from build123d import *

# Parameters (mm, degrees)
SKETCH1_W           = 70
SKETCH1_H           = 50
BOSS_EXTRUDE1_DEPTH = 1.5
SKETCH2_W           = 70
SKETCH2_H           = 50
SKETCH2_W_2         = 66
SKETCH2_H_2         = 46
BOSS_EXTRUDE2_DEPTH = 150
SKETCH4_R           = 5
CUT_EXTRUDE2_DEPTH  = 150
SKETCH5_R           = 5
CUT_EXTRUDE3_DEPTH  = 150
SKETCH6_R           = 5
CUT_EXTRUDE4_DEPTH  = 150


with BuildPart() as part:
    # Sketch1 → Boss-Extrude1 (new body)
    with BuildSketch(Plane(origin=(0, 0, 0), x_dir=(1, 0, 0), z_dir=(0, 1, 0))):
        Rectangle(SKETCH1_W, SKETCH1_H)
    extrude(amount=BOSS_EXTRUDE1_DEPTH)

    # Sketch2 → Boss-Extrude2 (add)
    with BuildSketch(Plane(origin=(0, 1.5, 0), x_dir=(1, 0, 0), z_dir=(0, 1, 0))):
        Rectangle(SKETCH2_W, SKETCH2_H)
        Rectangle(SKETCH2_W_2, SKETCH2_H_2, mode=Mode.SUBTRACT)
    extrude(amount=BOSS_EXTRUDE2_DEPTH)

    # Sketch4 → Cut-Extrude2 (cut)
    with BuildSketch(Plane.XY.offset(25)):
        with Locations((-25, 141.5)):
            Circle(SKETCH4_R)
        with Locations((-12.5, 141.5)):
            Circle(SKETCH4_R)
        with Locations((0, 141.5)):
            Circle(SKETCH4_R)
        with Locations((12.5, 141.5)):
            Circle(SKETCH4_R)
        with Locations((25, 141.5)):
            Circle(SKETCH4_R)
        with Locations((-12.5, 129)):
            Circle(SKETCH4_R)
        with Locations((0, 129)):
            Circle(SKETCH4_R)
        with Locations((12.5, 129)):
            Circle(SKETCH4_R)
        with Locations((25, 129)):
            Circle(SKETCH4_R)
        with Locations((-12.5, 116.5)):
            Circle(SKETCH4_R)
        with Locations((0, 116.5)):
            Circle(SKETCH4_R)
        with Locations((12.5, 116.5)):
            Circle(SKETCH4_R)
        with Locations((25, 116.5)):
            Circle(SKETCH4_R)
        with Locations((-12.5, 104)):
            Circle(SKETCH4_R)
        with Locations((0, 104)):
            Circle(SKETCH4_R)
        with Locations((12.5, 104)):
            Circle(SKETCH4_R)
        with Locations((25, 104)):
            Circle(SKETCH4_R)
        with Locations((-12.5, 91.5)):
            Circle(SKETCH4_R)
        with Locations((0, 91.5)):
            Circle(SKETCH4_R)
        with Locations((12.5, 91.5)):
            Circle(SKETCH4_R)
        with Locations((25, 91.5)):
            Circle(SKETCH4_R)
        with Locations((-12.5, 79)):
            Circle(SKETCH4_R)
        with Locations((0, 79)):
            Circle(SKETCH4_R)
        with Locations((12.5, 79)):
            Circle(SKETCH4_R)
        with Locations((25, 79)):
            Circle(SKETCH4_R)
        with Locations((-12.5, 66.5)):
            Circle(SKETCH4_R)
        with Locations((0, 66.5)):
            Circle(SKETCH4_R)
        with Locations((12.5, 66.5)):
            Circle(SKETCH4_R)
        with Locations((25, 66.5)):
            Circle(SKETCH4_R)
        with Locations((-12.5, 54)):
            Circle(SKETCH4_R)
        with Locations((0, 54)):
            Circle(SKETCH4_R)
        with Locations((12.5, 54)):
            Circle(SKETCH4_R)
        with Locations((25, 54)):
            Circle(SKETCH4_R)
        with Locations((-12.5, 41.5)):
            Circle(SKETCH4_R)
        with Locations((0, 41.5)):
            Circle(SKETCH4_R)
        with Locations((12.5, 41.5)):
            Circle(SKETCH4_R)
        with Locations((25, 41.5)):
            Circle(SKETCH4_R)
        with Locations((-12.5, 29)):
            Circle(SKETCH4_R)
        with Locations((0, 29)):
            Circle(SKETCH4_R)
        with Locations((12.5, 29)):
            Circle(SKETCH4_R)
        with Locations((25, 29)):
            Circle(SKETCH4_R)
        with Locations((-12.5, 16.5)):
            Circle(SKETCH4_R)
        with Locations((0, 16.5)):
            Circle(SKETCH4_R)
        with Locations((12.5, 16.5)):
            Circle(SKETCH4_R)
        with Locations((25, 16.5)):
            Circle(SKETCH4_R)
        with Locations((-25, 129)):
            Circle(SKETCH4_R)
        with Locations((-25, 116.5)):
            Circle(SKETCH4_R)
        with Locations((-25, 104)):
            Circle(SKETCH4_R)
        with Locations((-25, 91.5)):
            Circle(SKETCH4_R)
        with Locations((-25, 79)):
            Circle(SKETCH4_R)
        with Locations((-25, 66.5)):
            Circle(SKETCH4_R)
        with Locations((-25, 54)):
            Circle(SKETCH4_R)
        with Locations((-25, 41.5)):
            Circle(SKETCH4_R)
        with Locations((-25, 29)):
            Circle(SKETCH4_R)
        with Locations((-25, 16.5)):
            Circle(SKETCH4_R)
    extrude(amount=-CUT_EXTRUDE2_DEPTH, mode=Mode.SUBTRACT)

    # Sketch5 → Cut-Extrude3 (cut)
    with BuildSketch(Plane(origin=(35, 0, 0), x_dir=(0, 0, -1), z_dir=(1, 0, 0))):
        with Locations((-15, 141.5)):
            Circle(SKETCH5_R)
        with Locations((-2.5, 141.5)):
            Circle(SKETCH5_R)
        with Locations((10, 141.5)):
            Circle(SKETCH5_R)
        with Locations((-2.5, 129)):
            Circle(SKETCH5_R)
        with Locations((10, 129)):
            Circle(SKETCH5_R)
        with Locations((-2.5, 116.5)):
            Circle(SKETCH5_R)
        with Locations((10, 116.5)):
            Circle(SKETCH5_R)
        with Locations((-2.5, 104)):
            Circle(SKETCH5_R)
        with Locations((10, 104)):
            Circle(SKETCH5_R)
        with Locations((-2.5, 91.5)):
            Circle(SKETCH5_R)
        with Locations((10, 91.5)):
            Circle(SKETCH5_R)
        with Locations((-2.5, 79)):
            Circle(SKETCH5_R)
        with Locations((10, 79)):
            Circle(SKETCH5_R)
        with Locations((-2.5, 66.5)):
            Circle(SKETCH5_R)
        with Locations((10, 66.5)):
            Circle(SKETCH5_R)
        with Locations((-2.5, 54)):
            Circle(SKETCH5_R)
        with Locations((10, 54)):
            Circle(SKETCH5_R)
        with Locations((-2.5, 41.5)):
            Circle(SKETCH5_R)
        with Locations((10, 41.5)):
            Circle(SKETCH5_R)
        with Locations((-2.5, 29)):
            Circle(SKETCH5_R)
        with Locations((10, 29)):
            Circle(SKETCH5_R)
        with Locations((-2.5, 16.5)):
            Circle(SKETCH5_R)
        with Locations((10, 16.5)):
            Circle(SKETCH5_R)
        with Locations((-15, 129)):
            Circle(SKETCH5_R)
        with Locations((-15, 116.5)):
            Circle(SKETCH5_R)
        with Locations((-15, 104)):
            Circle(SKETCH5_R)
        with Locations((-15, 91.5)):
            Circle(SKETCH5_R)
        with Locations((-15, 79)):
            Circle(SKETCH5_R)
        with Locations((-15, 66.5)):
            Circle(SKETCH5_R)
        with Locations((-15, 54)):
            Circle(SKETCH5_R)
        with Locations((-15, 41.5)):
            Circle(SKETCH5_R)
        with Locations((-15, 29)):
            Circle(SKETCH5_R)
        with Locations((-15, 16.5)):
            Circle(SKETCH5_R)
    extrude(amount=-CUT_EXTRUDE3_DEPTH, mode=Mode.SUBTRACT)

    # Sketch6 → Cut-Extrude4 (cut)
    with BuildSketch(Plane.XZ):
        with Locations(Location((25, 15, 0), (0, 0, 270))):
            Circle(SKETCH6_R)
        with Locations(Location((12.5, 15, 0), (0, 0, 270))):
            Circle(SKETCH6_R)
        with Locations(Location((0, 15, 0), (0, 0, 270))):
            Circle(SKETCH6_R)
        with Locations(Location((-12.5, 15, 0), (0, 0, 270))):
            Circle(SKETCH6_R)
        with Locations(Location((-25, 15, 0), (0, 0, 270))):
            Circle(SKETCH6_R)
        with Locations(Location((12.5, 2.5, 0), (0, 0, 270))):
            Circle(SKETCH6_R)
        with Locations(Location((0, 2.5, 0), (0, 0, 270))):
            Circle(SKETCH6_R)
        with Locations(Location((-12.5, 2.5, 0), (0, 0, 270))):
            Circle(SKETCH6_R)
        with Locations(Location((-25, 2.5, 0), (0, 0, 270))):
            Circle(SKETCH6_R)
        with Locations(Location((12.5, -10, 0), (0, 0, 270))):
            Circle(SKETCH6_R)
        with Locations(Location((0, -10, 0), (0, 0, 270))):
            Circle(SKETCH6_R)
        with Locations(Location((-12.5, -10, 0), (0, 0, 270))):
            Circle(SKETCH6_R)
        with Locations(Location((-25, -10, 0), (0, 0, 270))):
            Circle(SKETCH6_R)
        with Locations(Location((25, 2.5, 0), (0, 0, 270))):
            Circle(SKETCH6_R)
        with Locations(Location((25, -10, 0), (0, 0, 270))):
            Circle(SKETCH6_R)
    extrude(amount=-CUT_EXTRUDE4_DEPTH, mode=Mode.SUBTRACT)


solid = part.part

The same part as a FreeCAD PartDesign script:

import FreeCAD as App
import Part
import Sketcher


def add_polygon(sketch, points):
    """Adds a closed chain of lines whose ends are joined by coincident constraints."""
    first, n = sketch.GeometryCount, len(points)
    for a, b in zip(points, points[1:] + points[:1]):
        sketch.addGeometry(Part.LineSegment(App.Vector(*a, 0), App.Vector(*b, 0)), False)
    for i in range(n):
        sketch.addConstraint(Sketcher.Constraint("Coincident", first + i, 2, first + (i + 1) % n, 1))

doc = App.newDocument("Part")
body = doc.addObject("PartDesign::Body", "Body")

sketch1 = body.newObject("Sketcher::SketchObject", "Sketch")
sketch1.AttachmentSupport = (doc.getObject("XZ_Plane"), [""])
sketch1.MapMode = "FlatFace"
add_polygon(sketch1, [(-35, -25), (-35, 25), (35, 25), (35, -25)])
sketch1.addConstraint(Sketcher.Constraint("Vertical", 0))
sketch1.addConstraint(Sketcher.Constraint("Horizontal", 1))
sketch1.addConstraint(Sketcher.Constraint("Vertical", 2))
sketch1.addConstraint(Sketcher.Constraint("Horizontal", 3))
sketch1.addConstraint(Sketcher.Constraint("Symmetric", 0, 2, 2, 2, -1, 1))
sketch1.addConstraint(Sketcher.Constraint("DistanceX", 1, 1, 1, 2, 70.0))
sketch1.addConstraint(Sketcher.Constraint("DistanceY", 0, 1, 0, 2, 50.0))
pad1 = body.newObject("PartDesign::Pad", "Pad")
pad1.Profile = sketch1
pad1.Length = 1.5
pad1.Reversed = True

sketch2 = body.newObject("Sketcher::SketchObject", "Sketch001")
sketch2.AttachmentSupport = (doc.getObject("XZ_Plane"), [""])
sketch2.MapMode = "FlatFace"
sketch2.AttachmentOffset = App.Placement(App.Vector(0, 0, -1.5), App.Rotation())
add_polygon(sketch2, [(-35, -25), (-35, 25), (35, 25), (35, -25)])
add_polygon(sketch2, [(33, 23), (-33, 23), (-33, -23), (33, -23)])
sketch2.addConstraint(Sketcher.Constraint("Vertical", 0))
sketch2.addConstraint(Sketcher.Constraint("Horizontal", 1))
sketch2.addConstraint(Sketcher.Constraint("Vertical", 2))
sketch2.addConstraint(Sketcher.Constraint("Horizontal", 3))
sketch2.addConstraint(Sketcher.Constraint("Horizontal", 4))
sketch2.addConstraint(Sketcher.Constraint("Vertical", 5))
sketch2.addConstraint(Sketcher.Constraint("Horizontal", 6))
sketch2.addConstraint(Sketcher.Constraint("Vertical", 7))
sketch2.addConstraint(Sketcher.Constraint("Symmetric", 0, 2, 2, 2, -1, 1))
sketch2.addConstraint(Sketcher.Constraint("Symmetric", 4, 2, 6, 2, -1, 1))
sketch2.addConstraint(Sketcher.Constraint("DistanceX", 1, 1, 1, 2, 70.0))
sketch2.addConstraint(Sketcher.Constraint("DistanceX", 4, 2, 4, 1, 66.0))
sketch2.addConstraint(Sketcher.Constraint("DistanceY", 0, 1, 0, 2, 50.0))
sketch2.addConstraint(Sketcher.Constraint("DistanceY", 5, 2, 5, 1, 46.0))
pad2 = body.newObject("PartDesign::Pad", "Pad001")
pad2.Profile = sketch2
pad2.Length = 150
pad2.Reversed = True

sketch3 = body.newObject("Sketcher::SketchObject", "Sketch002")
sketch3.AttachmentSupport = (doc.getObject("XY_Plane"), [""])
sketch3.MapMode = "FlatFace"
sketch3.AttachmentOffset = App.Placement(App.Vector(0, 0, 25), App.Rotation())
sketch3.addGeometry(Part.Circle(App.Vector(-25, 142, 0), App.Vector(0, 0, 1), 5), False)
sketch3.addGeometry(Part.Circle(App.Vector(-12, 142, 0), App.Vector(0, 0, 1), 5), False)
sketch3.addGeometry(Part.Circle(App.Vector(0, 142, 0), App.Vector(0, 0, 1), 5), False)
sketch3.addGeometry(Part.Circle(App.Vector(12, 142, 0), App.Vector(0, 0, 1), 5), False)
sketch3.addGeometry(Part.Circle(App.Vector(25, 142, 0), App.Vector(0, 0, 1), 5), False)
sketch3.addGeometry(Part.Circle(App.Vector(-12, 129, 0), App.Vector(0, 0, 1), 5), False)
sketch3.addGeometry(Part.Circle(App.Vector(0, 129, 0), App.Vector(0, 0, 1), 5), False)
sketch3.addGeometry(Part.Circle(App.Vector(12, 129, 0), App.Vector(0, 0, 1), 5), False)
sketch3.addGeometry(Part.Circle(App.Vector(25, 129, 0), App.Vector(0, 0, 1), 5), False)
sketch3.addGeometry(Part.Circle(App.Vector(-12, 116, 0), App.Vector(0, 0, 1), 5), False)
sketch3.addGeometry(Part.Circle(App.Vector(0, 116, 0), App.Vector(0, 0, 1), 5), False)
sketch3.addGeometry(Part.Circle(App.Vector(12, 116, 0), App.Vector(0, 0, 1), 5), False)
sketch3.addGeometry(Part.Circle(App.Vector(25, 116, 0), App.Vector(0, 0, 1), 5), False)
sketch3.addGeometry(Part.Circle(App.Vector(-12, 104, 0), App.Vector(0, 0, 1), 5), False)
sketch3.addGeometry(Part.Circle(App.Vector(0, 104, 0), App.Vector(0, 0, 1), 5), False)
sketch3.addGeometry(Part.Circle(App.Vector(12, 104, 0), App.Vector(0, 0, 1), 5), False)
sketch3.addGeometry(Part.Circle(App.Vector(25, 104, 0), App.Vector(0, 0, 1), 5), False)
sketch3.addGeometry(Part.Circle(App.Vector(-12, 92, 0), App.Vector(0, 0, 1), 5), False)
sketch3.addGeometry(Part.Circle(App.Vector(0, 92, 0), App.Vector(0, 0, 1), 5), False)
sketch3.addGeometry(Part.Circle(App.Vector(12, 92, 0), App.Vector(0, 0, 1), 5), False)
sketch3.addGeometry(Part.Circle(App.Vector(25, 92, 0), App.Vector(0, 0, 1), 5), False)
sketch3.addGeometry(Part.Circle(App.Vector(-12, 79, 0), App.Vector(0, 0, 1), 5), False)
sketch3.addGeometry(Part.Circle(App.Vector(0, 79, 0), App.Vector(0, 0, 1), 5), False)
sketch3.addGeometry(Part.Circle(App.Vector(12, 79, 0), App.Vector(0, 0, 1), 5), False)
sketch3.addGeometry(Part.Circle(App.Vector(25, 79, 0), App.Vector(0, 0, 1), 5), False)
sketch3.addGeometry(Part.Circle(App.Vector(-12, 66, 0), App.Vector(0, 0, 1), 5), False)
sketch3.addGeometry(Part.Circle(App.Vector(0, 66, 0), App.Vector(0, 0, 1), 5), False)
sketch3.addGeometry(Part.Circle(App.Vector(12, 66, 0), App.Vector(0, 0, 1), 5), False)
sketch3.addGeometry(Part.Circle(App.Vector(25, 66, 0), App.Vector(0, 0, 1), 5), False)
sketch3.addGeometry(Part.Circle(App.Vector(-12, 54, 0), App.Vector(0, 0, 1), 5), False)
sketch3.addGeometry(Part.Circle(App.Vector(0, 54, 0), App.Vector(0, 0, 1), 5), False)
sketch3.addGeometry(Part.Circle(App.Vector(12, 54, 0), App.Vector(0, 0, 1), 5), False)
sketch3.addGeometry(Part.Circle(App.Vector(25, 54, 0), App.Vector(0, 0, 1), 5), False)
sketch3.addGeometry(Part.Circle(App.Vector(-12, 42, 0), App.Vector(0, 0, 1), 5), False)
sketch3.addGeometry(Part.Circle(App.Vector(0, 42, 0), App.Vector(0, 0, 1), 5), False)
sketch3.addGeometry(Part.Circle(App.Vector(12, 42, 0), App.Vector(0, 0, 1), 5), False)
sketch3.addGeometry(Part.Circle(App.Vector(25, 42, 0), App.Vector(0, 0, 1), 5), False)
sketch3.addGeometry(Part.Circle(App.Vector(-12, 29, 0), App.Vector(0, 0, 1), 5), False)
sketch3.addGeometry(Part.Circle(App.Vector(0, 29, 0), App.Vector(0, 0, 1), 5), False)
sketch3.addGeometry(Part.Circle(App.Vector(12, 29, 0), App.Vector(0, 0, 1), 5), False)
sketch3.addGeometry(Part.Circle(App.Vector(25, 29, 0), App.Vector(0, 0, 1), 5), False)
sketch3.addGeometry(Part.Circle(App.Vector(-12, 16, 0), App.Vector(0, 0, 1), 5), False)
sketch3.addGeometry(Part.Circle(App.Vector(0, 16, 0), App.Vector(0, 0, 1), 5), False)
sketch3.addGeometry(Part.Circle(App.Vector(12, 16, 0), App.Vector(0, 0, 1), 5), False)
sketch3.addGeometry(Part.Circle(App.Vector(25, 16, 0), App.Vector(0, 0, 1), 5), False)
sketch3.addGeometry(Part.Circle(App.Vector(-25, 129, 0), App.Vector(0, 0, 1), 5), False)
sketch3.addGeometry(Part.Circle(App.Vector(-25, 116, 0), App.Vector(0, 0, 1), 5), False)
sketch3.addGeometry(Part.Circle(App.Vector(-25, 104, 0), App.Vector(0, 0, 1), 5), False)
sketch3.addGeometry(Part.Circle(App.Vector(-25, 92, 0), App.Vector(0, 0, 1), 5), False)
sketch3.addGeometry(Part.Circle(App.Vector(-25, 79, 0), App.Vector(0, 0, 1), 5), False)
sketch3.addGeometry(Part.Circle(App.Vector(-25, 66, 0), App.Vector(0, 0, 1), 5), False)
sketch3.addGeometry(Part.Circle(App.Vector(-25, 54, 0), App.Vector(0, 0, 1), 5), False)
sketch3.addGeometry(Part.Circle(App.Vector(-25, 42, 0), App.Vector(0, 0, 1), 5), False)
sketch3.addGeometry(Part.Circle(App.Vector(-25, 29, 0), App.Vector(0, 0, 1), 5), False)
sketch3.addGeometry(Part.Circle(App.Vector(-25, 16, 0), App.Vector(0, 0, 1), 5), False)
sketch3.addConstraint(Sketcher.Constraint("Equal", 0, 1))
sketch3.addConstraint(Sketcher.Constraint("Equal", 1, 2))
sketch3.addConstraint(Sketcher.Constraint("Equal", 2, 3))
sketch3.addConstraint(Sketcher.Constraint("Equal", 3, 4))
sketch3.addConstraint(Sketcher.Constraint("Equal", 4, 5))
sketch3.addConstraint(Sketcher.Constraint("Equal", 5, 6))
sketch3.addConstraint(Sketcher.Constraint("Equal", 6, 7))
sketch3.addConstraint(Sketcher.Constraint("Equal", 7, 8))
sketch3.addConstraint(Sketcher.Constraint("Equal", 8, 9))
sketch3.addConstraint(Sketcher.Constraint("Equal", 9, 10))
sketch3.addConstraint(Sketcher.Constraint("Equal", 10, 11))
sketch3.addConstraint(Sketcher.Constraint("Equal", 11, 12))
sketch3.addConstraint(Sketcher.Constraint("Equal", 12, 13))
sketch3.addConstraint(Sketcher.Constraint("Equal", 13, 14))
sketch3.addConstraint(Sketcher.Constraint("Equal", 14, 15))
sketch3.addConstraint(Sketcher.Constraint("Equal", 15, 16))
sketch3.addConstraint(Sketcher.Constraint("Equal", 16, 17))
sketch3.addConstraint(Sketcher.Constraint("Equal", 17, 18))
sketch3.addConstraint(Sketcher.Constraint("Equal", 18, 19))
sketch3.addConstraint(Sketcher.Constraint("Equal", 19, 20))
sketch3.addConstraint(Sketcher.Constraint("Equal", 20, 21))
sketch3.addConstraint(Sketcher.Constraint("Equal", 21, 22))
sketch3.addConstraint(Sketcher.Constraint("Equal", 22, 23))
sketch3.addConstraint(Sketcher.Constraint("Equal", 23, 24))
sketch3.addConstraint(Sketcher.Constraint("Equal", 24, 25))
sketch3.addConstraint(Sketcher.Constraint("Equal", 25, 26))
sketch3.addConstraint(Sketcher.Constraint("Equal", 26, 27))
sketch3.addConstraint(Sketcher.Constraint("Equal", 27, 28))
sketch3.addConstraint(Sketcher.Constraint("Equal", 28, 29))
sketch3.addConstraint(Sketcher.Constraint("Equal", 29, 30))
sketch3.addConstraint(Sketcher.Constraint("Equal", 30, 31))
sketch3.addConstraint(Sketcher.Constraint("Equal", 31, 32))
sketch3.addConstraint(Sketcher.Constraint("Equal", 32, 33))
sketch3.addConstraint(Sketcher.Constraint("Equal", 33, 34))
sketch3.addConstraint(Sketcher.Constraint("Equal", 34, 35))
sketch3.addConstraint(Sketcher.Constraint("Equal", 35, 36))
sketch3.addConstraint(Sketcher.Constraint("Equal", 36, 37))
sketch3.addConstraint(Sketcher.Constraint("Equal", 37, 38))
sketch3.addConstraint(Sketcher.Constraint("Equal", 38, 39))
sketch3.addConstraint(Sketcher.Constraint("Equal", 39, 40))
sketch3.addConstraint(Sketcher.Constraint("Equal", 40, 41))
sketch3.addConstraint(Sketcher.Constraint("Equal", 41, 42))
sketch3.addConstraint(Sketcher.Constraint("Equal", 42, 43))
sketch3.addConstraint(Sketcher.Constraint("Equal", 43, 44))
sketch3.addConstraint(Sketcher.Constraint("Equal", 44, 45))
sketch3.addConstraint(Sketcher.Constraint("Equal", 45, 46))
sketch3.addConstraint(Sketcher.Constraint("Equal", 46, 47))
sketch3.addConstraint(Sketcher.Constraint("Equal", 47, 48))
sketch3.addConstraint(Sketcher.Constraint("Equal", 48, 49))
sketch3.addConstraint(Sketcher.Constraint("Equal", 49, 50))
sketch3.addConstraint(Sketcher.Constraint("Equal", 50, 51))
sketch3.addConstraint(Sketcher.Constraint("Equal", 51, 52))
sketch3.addConstraint(Sketcher.Constraint("Equal", 52, 53))
sketch3.addConstraint(Sketcher.Constraint("Equal", 53, 54))
sketch3.addConstraint(Sketcher.Constraint("Symmetric", 1, 3, 3, 3, -2))
sketch3.addConstraint(Sketcher.Constraint("Symmetric", 0, 3, 4, 3, -2))
sketch3.addConstraint(Sketcher.Constraint("Symmetric", 5, 3, 7, 3, -2))
sketch3.addConstraint(Sketcher.Constraint("Symmetric", 9, 3, 11, 3, -2))
sketch3.addConstraint(Sketcher.Constraint("Symmetric", 13, 3, 15, 3, -2))
sketch3.addConstraint(Sketcher.Constraint("Symmetric", 17, 3, 19, 3, -2))
sketch3.addConstraint(Sketcher.Constraint("Symmetric", 21, 3, 23, 3, -2))
sketch3.addConstraint(Sketcher.Constraint("Symmetric", 25, 3, 27, 3, -2))
sketch3.addConstraint(Sketcher.Constraint("Symmetric", 29, 3, 31, 3, -2))
sketch3.addConstraint(Sketcher.Constraint("Symmetric", 33, 3, 35, 3, -2))
sketch3.addConstraint(Sketcher.Constraint("Symmetric", 37, 3, 39, 3, -2))
sketch3.addConstraint(Sketcher.Constraint("Symmetric", 41, 3, 43, 3, -2))
sketch3.addConstraint(Sketcher.Constraint("Symmetric", 8, 3, 45, 3, -2))
sketch3.addConstraint(Sketcher.Constraint("Symmetric", 12, 3, 46, 3, -2))
sketch3.addConstraint(Sketcher.Constraint("Symmetric", 16, 3, 47, 3, -2))
sketch3.addConstraint(Sketcher.Constraint("Symmetric", 20, 3, 48, 3, -2))
sketch3.addConstraint(Sketcher.Constraint("Symmetric", 24, 3, 49, 3, -2))
sketch3.addConstraint(Sketcher.Constraint("Symmetric", 28, 3, 50, 3, -2))
sketch3.addConstraint(Sketcher.Constraint("Symmetric", 32, 3, 51, 3, -2))
sketch3.addConstraint(Sketcher.Constraint("Symmetric", 36, 3, 52, 3, -2))
sketch3.addConstraint(Sketcher.Constraint("Symmetric", 40, 3, 53, 3, -2))
sketch3.addConstraint(Sketcher.Constraint("Symmetric", 44, 3, 54, 3, -2))
sketch3.addConstraint(Sketcher.Constraint("PointOnObject", 2, 3, -2))
sketch3.addConstraint(Sketcher.Constraint("PointOnObject", 6, 3, -2))
sketch3.addConstraint(Sketcher.Constraint("PointOnObject", 10, 3, -2))
sketch3.addConstraint(Sketcher.Constraint("PointOnObject", 14, 3, -2))
sketch3.addConstraint(Sketcher.Constraint("PointOnObject", 18, 3, -2))
sketch3.addConstraint(Sketcher.Constraint("PointOnObject", 22, 3, -2))
sketch3.addConstraint(Sketcher.Constraint("PointOnObject", 26, 3, -2))
sketch3.addConstraint(Sketcher.Constraint("PointOnObject", 30, 3, -2))
sketch3.addConstraint(Sketcher.Constraint("PointOnObject", 34, 3, -2))
sketch3.addConstraint(Sketcher.Constraint("PointOnObject", 38, 3, -2))
sketch3.addConstraint(Sketcher.Constraint("PointOnObject", 42, 3, -2))
sketch3.addConstraint(Sketcher.Constraint("Horizontal", 0, 3, 1, 3))
sketch3.addConstraint(Sketcher.Constraint("Horizontal", 1, 3, 2, 3))
sketch3.addConstraint(Sketcher.Constraint("Horizontal", 5, 3, 6, 3))
sketch3.addConstraint(Sketcher.Constraint("Horizontal", 7, 3, 8, 3))
sketch3.addConstraint(Sketcher.Constraint("Horizontal", 9, 3, 10, 3))
sketch3.addConstraint(Sketcher.Constraint("Horizontal", 11, 3, 12, 3))
sketch3.addConstraint(Sketcher.Constraint("Horizontal", 13, 3, 14, 3))
sketch3.addConstraint(Sketcher.Constraint("Horizontal", 15, 3, 16, 3))
sketch3.addConstraint(Sketcher.Constraint("Horizontal", 17, 3, 18, 3))
sketch3.addConstraint(Sketcher.Constraint("Horizontal", 19, 3, 20, 3))
sketch3.addConstraint(Sketcher.Constraint("Horizontal", 21, 3, 22, 3))
sketch3.addConstraint(Sketcher.Constraint("Horizontal", 23, 3, 24, 3))
sketch3.addConstraint(Sketcher.Constraint("Horizontal", 25, 3, 26, 3))
sketch3.addConstraint(Sketcher.Constraint("Horizontal", 27, 3, 28, 3))
sketch3.addConstraint(Sketcher.Constraint("Horizontal", 29, 3, 30, 3))
sketch3.addConstraint(Sketcher.Constraint("Horizontal", 31, 3, 32, 3))
sketch3.addConstraint(Sketcher.Constraint("Horizontal", 33, 3, 34, 3))
sketch3.addConstraint(Sketcher.Constraint("Horizontal", 35, 3, 36, 3))
sketch3.addConstraint(Sketcher.Constraint("Horizontal", 37, 3, 38, 3))
sketch3.addConstraint(Sketcher.Constraint("Horizontal", 39, 3, 40, 3))
sketch3.addConstraint(Sketcher.Constraint("Horizontal", 41, 3, 42, 3))
sketch3.addConstraint(Sketcher.Constraint("Horizontal", 43, 3, 44, 3))
sketch3.addConstraint(Sketcher.Constraint("Vertical", 1, 3, 5, 3))
sketch3.addConstraint(Sketcher.Constraint("Vertical", 4, 3, 8, 3))
sketch3.addConstraint(Sketcher.Constraint("Vertical", 5, 3, 9, 3))
sketch3.addConstraint(Sketcher.Constraint("Vertical", 8, 3, 12, 3))
sketch3.addConstraint(Sketcher.Constraint("Vertical", 9, 3, 13, 3))
sketch3.addConstraint(Sketcher.Constraint("Vertical", 12, 3, 16, 3))
sketch3.addConstraint(Sketcher.Constraint("Vertical", 13, 3, 17, 3))
sketch3.addConstraint(Sketcher.Constraint("Vertical", 16, 3, 20, 3))
sketch3.addConstraint(Sketcher.Constraint("Vertical", 17, 3, 21, 3))
sketch3.addConstraint(Sketcher.Constraint("Vertical", 20, 3, 24, 3))
sketch3.addConstraint(Sketcher.Constraint("Vertical", 21, 3, 25, 3))
sketch3.addConstraint(Sketcher.Constraint("Vertical", 24, 3, 28, 3))
sketch3.addConstraint(Sketcher.Constraint("Vertical", 25, 3, 29, 3))
sketch3.addConstraint(Sketcher.Constraint("Vertical", 28, 3, 32, 3))
sketch3.addConstraint(Sketcher.Constraint("Vertical", 29, 3, 33, 3))
sketch3.addConstraint(Sketcher.Constraint("Vertical", 32, 3, 36, 3))
sketch3.addConstraint(Sketcher.Constraint("Vertical", 33, 3, 37, 3))
sketch3.addConstraint(Sketcher.Constraint("Vertical", 36, 3, 40, 3))
sketch3.addConstraint(Sketcher.Constraint("Vertical", 37, 3, 41, 3))
sketch3.addConstraint(Sketcher.Constraint("Vertical", 40, 3, 44, 3))
sketch3.addConstraint(Sketcher.Constraint("Diameter", 0, 10.0))
sketch3.addConstraint(Sketcher.Constraint("DistanceX", 0, 3, -1, 1, 25.0))
sketch3.addConstraint(Sketcher.Constraint("DistanceY", -1, 1, 5, 3, 129.0))
sketch3.addConstraint(Sketcher.Constraint("DistanceY", -1, 1, 13, 3, 104.0))
sketch3.addConstraint(Sketcher.Constraint("DistanceY", -1, 1, 21, 3, 79.0))
sketch3.addConstraint(Sketcher.Constraint("DistanceY", -1, 1, 29, 3, 54.0))
sketch3.addConstraint(Sketcher.Constraint("DistanceY", -1, 1, 37, 3, 29.0))
sketch3.addConstraint(Sketcher.Constraint("DistanceX", 1, 3, 3, 3, 25.0))
sketch3.addConstraint(Sketcher.Constraint("DistanceY", 9, 3, 1, 3, 25.0))
sketch3.addConstraint(Sketcher.Constraint("DistanceY", 17, 3, 9, 3, 25.0))
sketch3.addConstraint(Sketcher.Constraint("DistanceY", 25, 3, 17, 3, 25.0))
sketch3.addConstraint(Sketcher.Constraint("DistanceY", 33, 3, 25, 3, 25.0))
sketch3.addConstraint(Sketcher.Constraint("DistanceY", 41, 3, 33, 3, 25.0))
sketch3.addConstraint(Sketcher.Constraint("DistanceY", -1, 1, 0, 3, 141.5))
pocket1 = body.newObject("PartDesign::Pocket", "Pocket")
pocket1.Profile = sketch3
pocket1.Length = 150

sketch4 = body.newObject("Sketcher::SketchObject", "Sketch003")
sketch4.AttachmentSupport = (doc.getObject("YZ_Plane"), [""])
sketch4.MapMode = "FlatFace"
sketch4.AttachmentOffset = App.Placement(App.Vector(0, 0, 35), App.Rotation())
sketch4.addGeometry(Part.Circle(App.Vector(142, 15, 0), App.Vector(0, 0, 1), 5), False)
sketch4.addGeometry(Part.Circle(App.Vector(142, 2, 0), App.Vector(0, 0, 1), 5), False)
sketch4.addGeometry(Part.Circle(App.Vector(142, -10, 0), App.Vector(0, 0, 1), 5), False)
sketch4.addGeometry(Part.Circle(App.Vector(129, 2, 0), App.Vector(0, 0, 1), 5), False)
sketch4.addGeometry(Part.Circle(App.Vector(129, -10, 0), App.Vector(0, 0, 1), 5), False)
sketch4.addGeometry(Part.Circle(App.Vector(116, 2, 0), App.Vector(0, 0, 1), 5), False)
sketch4.addGeometry(Part.Circle(App.Vector(116, -10, 0), App.Vector(0, 0, 1), 5), False)
sketch4.addGeometry(Part.Circle(App.Vector(104, 2, 0), App.Vector(0, 0, 1), 5), False)
sketch4.addGeometry(Part.Circle(App.Vector(104, -10, 0), App.Vector(0, 0, 1), 5), False)
sketch4.addGeometry(Part.Circle(App.Vector(92, 2, 0), App.Vector(0, 0, 1), 5), False)
sketch4.addGeometry(Part.Circle(App.Vector(92, -10, 0), App.Vector(0, 0, 1), 5), False)
sketch4.addGeometry(Part.Circle(App.Vector(79, 2, 0), App.Vector(0, 0, 1), 5), False)
sketch4.addGeometry(Part.Circle(App.Vector(79, -10, 0), App.Vector(0, 0, 1), 5), False)
sketch4.addGeometry(Part.Circle(App.Vector(66, 2, 0), App.Vector(0, 0, 1), 5), False)
sketch4.addGeometry(Part.Circle(App.Vector(66, -10, 0), App.Vector(0, 0, 1), 5), False)
sketch4.addGeometry(Part.Circle(App.Vector(54, 2, 0), App.Vector(0, 0, 1), 5), False)
sketch4.addGeometry(Part.Circle(App.Vector(54, -10, 0), App.Vector(0, 0, 1), 5), False)
sketch4.addGeometry(Part.Circle(App.Vector(42, 2, 0), App.Vector(0, 0, 1), 5), False)
sketch4.addGeometry(Part.Circle(App.Vector(42, -10, 0), App.Vector(0, 0, 1), 5), False)
sketch4.addGeometry(Part.Circle(App.Vector(29, 2, 0), App.Vector(0, 0, 1), 5), False)
sketch4.addGeometry(Part.Circle(App.Vector(29, -10, 0), App.Vector(0, 0, 1), 5), False)
sketch4.addGeometry(Part.Circle(App.Vector(16, 2, 0), App.Vector(0, 0, 1), 5), False)
sketch4.addGeometry(Part.Circle(App.Vector(16, -10, 0), App.Vector(0, 0, 1), 5), False)
sketch4.addGeometry(Part.Circle(App.Vector(129, 15, 0), App.Vector(0, 0, 1), 5), False)
sketch4.addGeometry(Part.Circle(App.Vector(116, 15, 0), App.Vector(0, 0, 1), 5), False)
sketch4.addGeometry(Part.Circle(App.Vector(104, 15, 0), App.Vector(0, 0, 1), 5), False)
sketch4.addGeometry(Part.Circle(App.Vector(92, 15, 0), App.Vector(0, 0, 1), 5), False)
sketch4.addGeometry(Part.Circle(App.Vector(79, 15, 0), App.Vector(0, 0, 1), 5), False)
sketch4.addGeometry(Part.Circle(App.Vector(66, 15, 0), App.Vector(0, 0, 1), 5), False)
sketch4.addGeometry(Part.Circle(App.Vector(54, 15, 0), App.Vector(0, 0, 1), 5), False)
sketch4.addGeometry(Part.Circle(App.Vector(42, 15, 0), App.Vector(0, 0, 1), 5), False)
sketch4.addGeometry(Part.Circle(App.Vector(29, 15, 0), App.Vector(0, 0, 1), 5), False)
sketch4.addGeometry(Part.Circle(App.Vector(16, 15, 0), App.Vector(0, 0, 1), 5), False)
sketch4.addConstraint(Sketcher.Constraint("Equal", 0, 1))
sketch4.addConstraint(Sketcher.Constraint("Equal", 1, 2))
sketch4.addConstraint(Sketcher.Constraint("Equal", 2, 3))
sketch4.addConstraint(Sketcher.Constraint("Equal", 3, 4))
sketch4.addConstraint(Sketcher.Constraint("Equal", 4, 5))
sketch4.addConstraint(Sketcher.Constraint("Equal", 5, 6))
sketch4.addConstraint(Sketcher.Constraint("Equal", 6, 7))
sketch4.addConstraint(Sketcher.Constraint("Equal", 7, 8))
sketch4.addConstraint(Sketcher.Constraint("Equal", 8, 9))
sketch4.addConstraint(Sketcher.Constraint("Equal", 9, 10))
sketch4.addConstraint(Sketcher.Constraint("Equal", 10, 11))
sketch4.addConstraint(Sketcher.Constraint("Equal", 11, 12))
sketch4.addConstraint(Sketcher.Constraint("Equal", 12, 13))
sketch4.addConstraint(Sketcher.Constraint("Equal", 13, 14))
sketch4.addConstraint(Sketcher.Constraint("Equal", 14, 15))
sketch4.addConstraint(Sketcher.Constraint("Equal", 15, 16))
sketch4.addConstraint(Sketcher.Constraint("Equal", 16, 17))
sketch4.addConstraint(Sketcher.Constraint("Equal", 17, 18))
sketch4.addConstraint(Sketcher.Constraint("Equal", 18, 19))
sketch4.addConstraint(Sketcher.Constraint("Equal", 19, 20))
sketch4.addConstraint(Sketcher.Constraint("Equal", 20, 21))
sketch4.addConstraint(Sketcher.Constraint("Equal", 21, 22))
sketch4.addConstraint(Sketcher.Constraint("Equal", 22, 23))
sketch4.addConstraint(Sketcher.Constraint("Equal", 23, 24))
sketch4.addConstraint(Sketcher.Constraint("Equal", 24, 25))
sketch4.addConstraint(Sketcher.Constraint("Equal", 25, 26))
sketch4.addConstraint(Sketcher.Constraint("Equal", 26, 27))
sketch4.addConstraint(Sketcher.Constraint("Equal", 27, 28))
sketch4.addConstraint(Sketcher.Constraint("Equal", 28, 29))
sketch4.addConstraint(Sketcher.Constraint("Equal", 29, 30))
sketch4.addConstraint(Sketcher.Constraint("Equal", 30, 31))
sketch4.addConstraint(Sketcher.Constraint("Equal", 31, 32))
sketch4.addConstraint(Sketcher.Constraint("Horizontal", 1, 3, 3, 3))
sketch4.addConstraint(Sketcher.Constraint("Horizontal", 2, 3, 4, 3))
sketch4.addConstraint(Sketcher.Constraint("Horizontal", 3, 3, 5, 3))
sketch4.addConstraint(Sketcher.Constraint("Horizontal", 4, 3, 6, 3))
sketch4.addConstraint(Sketcher.Constraint("Horizontal", 5, 3, 7, 3))
sketch4.addConstraint(Sketcher.Constraint("Horizontal", 6, 3, 8, 3))
sketch4.addConstraint(Sketcher.Constraint("Horizontal", 7, 3, 9, 3))
sketch4.addConstraint(Sketcher.Constraint("Horizontal", 8, 3, 10, 3))
sketch4.addConstraint(Sketcher.Constraint("Horizontal", 9, 3, 11, 3))
sketch4.addConstraint(Sketcher.Constraint("Horizontal", 10, 3, 12, 3))
sketch4.addConstraint(Sketcher.Constraint("Horizontal", 11, 3, 13, 3))
sketch4.addConstraint(Sketcher.Constraint("Horizontal", 12, 3, 14, 3))
sketch4.addConstraint(Sketcher.Constraint("Horizontal", 13, 3, 15, 3))
sketch4.addConstraint(Sketcher.Constraint("Horizontal", 14, 3, 16, 3))
sketch4.addConstraint(Sketcher.Constraint("Horizontal", 15, 3, 17, 3))
sketch4.addConstraint(Sketcher.Constraint("Horizontal", 16, 3, 18, 3))
sketch4.addConstraint(Sketcher.Constraint("Horizontal", 17, 3, 19, 3))
sketch4.addConstraint(Sketcher.Constraint("Horizontal", 18, 3, 20, 3))
sketch4.addConstraint(Sketcher.Constraint("Horizontal", 19, 3, 21, 3))
sketch4.addConstraint(Sketcher.Constraint("Horizontal", 20, 3, 22, 3))
sketch4.addConstraint(Sketcher.Constraint("Horizontal", 0, 3, 23, 3))
sketch4.addConstraint(Sketcher.Constraint("Horizontal", 23, 3, 24, 3))
sketch4.addConstraint(Sketcher.Constraint("Horizontal", 24, 3, 25, 3))
sketch4.addConstraint(Sketcher.Constraint("Horizontal", 25, 3, 26, 3))
sketch4.addConstraint(Sketcher.Constraint("Horizontal", 26, 3, 27, 3))
sketch4.addConstraint(Sketcher.Constraint("Horizontal", 27, 3, 28, 3))
sketch4.addConstraint(Sketcher.Constraint("Horizontal", 28, 3, 29, 3))
sketch4.addConstraint(Sketcher.Constraint("Horizontal", 29, 3, 30, 3))
sketch4.addConstraint(Sketcher.Constraint("Horizontal", 30, 3, 31, 3))
sketch4.addConstraint(Sketcher.Constraint("Horizontal", 31, 3, 32, 3))
sketch4.addConstraint(Sketcher.Constraint("Vertical", 0, 3, 1, 3))
sketch4.addConstraint(Sketcher.Constraint("Vertical", 1, 3, 2, 3))
sketch4.addConstraint(Sketcher.Constraint("Vertical", 3, 3, 4, 3))
sketch4.addConstraint(Sketcher.Constraint("Vertical", 5, 3, 6, 3))
sketch4.addConstraint(Sketcher.Constraint("Vertical", 7, 3, 8, 3))
sketch4.addConstraint(Sketcher.Constraint("Vertical", 9, 3, 10, 3))
sketch4.addConstraint(Sketcher.Constraint("Vertical", 11, 3, 12, 3))
sketch4.addConstraint(Sketcher.Constraint("Vertical", 13, 3, 14, 3))
sketch4.addConstraint(Sketcher.Constraint("Vertical", 15, 3, 16, 3))
sketch4.addConstraint(Sketcher.Constraint("Vertical", 17, 3, 18, 3))
sketch4.addConstraint(Sketcher.Constraint("Vertical", 19, 3, 20, 3))
sketch4.addConstraint(Sketcher.Constraint("Vertical", 21, 3, 22, 3))
sketch4.addConstraint(Sketcher.Constraint("Vertical", 4, 3, 23, 3))
sketch4.addConstraint(Sketcher.Constraint("Vertical", 6, 3, 24, 3))
sketch4.addConstraint(Sketcher.Constraint("Vertical", 8, 3, 25, 3))
sketch4.addConstraint(Sketcher.Constraint("Vertical", 10, 3, 26, 3))
sketch4.addConstraint(Sketcher.Constraint("Vertical", 12, 3, 27, 3))
sketch4.addConstraint(Sketcher.Constraint("Vertical", 14, 3, 28, 3))
sketch4.addConstraint(Sketcher.Constraint("Vertical", 16, 3, 29, 3))
sketch4.addConstraint(Sketcher.Constraint("Vertical", 18, 3, 30, 3))
sketch4.addConstraint(Sketcher.Constraint("Vertical", 20, 3, 31, 3))
sketch4.addConstraint(Sketcher.Constraint("Vertical", 22, 3, 32, 3))
sketch4.addConstraint(Sketcher.Constraint("Diameter", 0, 10.0))
sketch4.addConstraint(Sketcher.Constraint("DistanceY", -1, 1, 0, 3, 15.0))
sketch4.addConstraint(Sketcher.Constraint("DistanceY", 2, 3, -1, 1, 10.0))
sketch4.addConstraint(Sketcher.Constraint("DistanceX", -1, 1, 3, 3, 129.0))
sketch4.addConstraint(Sketcher.Constraint("DistanceX", -1, 1, 7, 3, 104.0))
sketch4.addConstraint(Sketcher.Constraint("DistanceX", -1, 1, 11, 3, 79.0))
sketch4.addConstraint(Sketcher.Constraint("DistanceX", -1, 1, 15, 3, 54.0))
sketch4.addConstraint(Sketcher.Constraint("DistanceX", -1, 1, 19, 3, 29.0))
sketch4.addConstraint(Sketcher.Constraint("DistanceX", 5, 3, 1, 3, 25.0))
sketch4.addConstraint(Sketcher.Constraint("DistanceX", 9, 3, 5, 3, 25.0))
sketch4.addConstraint(Sketcher.Constraint("DistanceX", 13, 3, 9, 3, 25.0))
sketch4.addConstraint(Sketcher.Constraint("DistanceX", 17, 3, 13, 3, 25.0))
sketch4.addConstraint(Sketcher.Constraint("DistanceX", 21, 3, 17, 3, 25.0))
sketch4.addConstraint(Sketcher.Constraint("DistanceX", -1, 1, 0, 3, 141.5))
sketch4.addConstraint(Sketcher.Constraint("DistanceY", -1, 1, 1, 3, 2.5))
pocket2 = body.newObject("PartDesign::Pocket", "Pocket001")
pocket2.Profile = sketch4
pocket2.Length = 150

sketch5 = body.newObject("Sketcher::SketchObject", "Sketch004")
sketch5.AttachmentSupport = (doc.getObject("XZ_Plane"), [""])
sketch5.MapMode = "FlatFace"
sketch5.addGeometry(Part.Circle(App.Vector(25, 15, 0), App.Vector(0, 0, 1), 5), False)
sketch5.addGeometry(Part.Circle(App.Vector(12, 15, 0), App.Vector(0, 0, 1), 5), False)
sketch5.addGeometry(Part.Circle(App.Vector(0, 15, 0), App.Vector(0, 0, 1), 5), False)
sketch5.addGeometry(Part.Circle(App.Vector(-12, 15, 0), App.Vector(0, 0, 1), 5), False)
sketch5.addGeometry(Part.Circle(App.Vector(-25, 15, 0), App.Vector(0, 0, 1), 5), False)
sketch5.addGeometry(Part.Circle(App.Vector(12, 2, 0), App.Vector(0, 0, 1), 5), False)
sketch5.addGeometry(Part.Circle(App.Vector(0, 2, 0), App.Vector(0, 0, 1), 5), False)
sketch5.addGeometry(Part.Circle(App.Vector(-12, 2, 0), App.Vector(0, 0, 1), 5), False)
sketch5.addGeometry(Part.Circle(App.Vector(-25, 2, 0), App.Vector(0, 0, 1), 5), False)
sketch5.addGeometry(Part.Circle(App.Vector(12, -10, 0), App.Vector(0, 0, 1), 5), False)
sketch5.addGeometry(Part.Circle(App.Vector(0, -10, 0), App.Vector(0, 0, 1), 5), False)
sketch5.addGeometry(Part.Circle(App.Vector(-12, -10, 0), App.Vector(0, 0, 1), 5), False)
sketch5.addGeometry(Part.Circle(App.Vector(-25, -10, 0), App.Vector(0, 0, 1), 5), False)
sketch5.addGeometry(Part.Circle(App.Vector(25, 2, 0), App.Vector(0, 0, 1), 5), False)
sketch5.addGeometry(Part.Circle(App.Vector(25, -10, 0), App.Vector(0, 0, 1), 5), False)
sketch5.addConstraint(Sketcher.Constraint("Equal", 0, 1))
sketch5.addConstraint(Sketcher.Constraint("Equal", 1, 2))
sketch5.addConstraint(Sketcher.Constraint("Equal", 2, 3))
sketch5.addConstraint(Sketcher.Constraint("Equal", 3, 4))
sketch5.addConstraint(Sketcher.Constraint("Equal", 4, 5))
sketch5.addConstraint(Sketcher.Constraint("Equal", 5, 6))
sketch5.addConstraint(Sketcher.Constraint("Equal", 6, 7))
sketch5.addConstraint(Sketcher.Constraint("Equal", 7, 8))
sketch5.addConstraint(Sketcher.Constraint("Equal", 8, 9))
sketch5.addConstraint(Sketcher.Constraint("Equal", 9, 10))
sketch5.addConstraint(Sketcher.Constraint("Equal", 10, 11))
sketch5.addConstraint(Sketcher.Constraint("Equal", 11, 12))
sketch5.addConstraint(Sketcher.Constraint("Equal", 12, 13))
sketch5.addConstraint(Sketcher.Constraint("Equal", 13, 14))
sketch5.addConstraint(Sketcher.Constraint("Symmetric", 1, 3, 3, 3, -2))
sketch5.addConstraint(Sketcher.Constraint("Symmetric", 0, 3, 4, 3, -2))
sketch5.addConstraint(Sketcher.Constraint("Symmetric", 5, 3, 7, 3, -2))
sketch5.addConstraint(Sketcher.Constraint("Symmetric", 9, 3, 11, 3, -2))
sketch5.addConstraint(Sketcher.Constraint("Symmetric", 8, 3, 13, 3, -2))
sketch5.addConstraint(Sketcher.Constraint("Symmetric", 12, 3, 14, 3, -2))
sketch5.addConstraint(Sketcher.Constraint("PointOnObject", 2, 3, -2))
sketch5.addConstraint(Sketcher.Constraint("PointOnObject", 6, 3, -2))
sketch5.addConstraint(Sketcher.Constraint("PointOnObject", 10, 3, -2))
sketch5.addConstraint(Sketcher.Constraint("Horizontal", 0, 3, 1, 3))
sketch5.addConstraint(Sketcher.Constraint("Horizontal", 1, 3, 2, 3))
sketch5.addConstraint(Sketcher.Constraint("Horizontal", 5, 3, 6, 3))
sketch5.addConstraint(Sketcher.Constraint("Horizontal", 7, 3, 8, 3))
sketch5.addConstraint(Sketcher.Constraint("Horizontal", 9, 3, 10, 3))
sketch5.addConstraint(Sketcher.Constraint("Horizontal", 11, 3, 12, 3))
sketch5.addConstraint(Sketcher.Constraint("Vertical", 1, 3, 5, 3))
sketch5.addConstraint(Sketcher.Constraint("Vertical", 4, 3, 8, 3))
sketch5.addConstraint(Sketcher.Constraint("Vertical", 5, 3, 9, 3))
sketch5.addConstraint(Sketcher.Constraint("Vertical", 8, 3, 12, 3))
sketch5.addConstraint(Sketcher.Constraint("Diameter", 0, 10.0))
sketch5.addConstraint(Sketcher.Constraint("DistanceX", -1, 1, 0, 3, 25.0))
sketch5.addConstraint(Sketcher.Constraint("DistanceY", -1, 1, 0, 3, 15.0))
sketch5.addConstraint(Sketcher.Constraint("DistanceY", 9, 3, -1, 1, 10.0))
sketch5.addConstraint(Sketcher.Constraint("DistanceX", 3, 3, 1, 3, 25.0))
sketch5.addConstraint(Sketcher.Constraint("DistanceY", -1, 1, 5, 3, 2.5))
pocket3 = body.newObject("PartDesign::Pocket", "Pocket002")
pocket3.Profile = sketch5
pocket3.Length = 150

doc.recompute()
